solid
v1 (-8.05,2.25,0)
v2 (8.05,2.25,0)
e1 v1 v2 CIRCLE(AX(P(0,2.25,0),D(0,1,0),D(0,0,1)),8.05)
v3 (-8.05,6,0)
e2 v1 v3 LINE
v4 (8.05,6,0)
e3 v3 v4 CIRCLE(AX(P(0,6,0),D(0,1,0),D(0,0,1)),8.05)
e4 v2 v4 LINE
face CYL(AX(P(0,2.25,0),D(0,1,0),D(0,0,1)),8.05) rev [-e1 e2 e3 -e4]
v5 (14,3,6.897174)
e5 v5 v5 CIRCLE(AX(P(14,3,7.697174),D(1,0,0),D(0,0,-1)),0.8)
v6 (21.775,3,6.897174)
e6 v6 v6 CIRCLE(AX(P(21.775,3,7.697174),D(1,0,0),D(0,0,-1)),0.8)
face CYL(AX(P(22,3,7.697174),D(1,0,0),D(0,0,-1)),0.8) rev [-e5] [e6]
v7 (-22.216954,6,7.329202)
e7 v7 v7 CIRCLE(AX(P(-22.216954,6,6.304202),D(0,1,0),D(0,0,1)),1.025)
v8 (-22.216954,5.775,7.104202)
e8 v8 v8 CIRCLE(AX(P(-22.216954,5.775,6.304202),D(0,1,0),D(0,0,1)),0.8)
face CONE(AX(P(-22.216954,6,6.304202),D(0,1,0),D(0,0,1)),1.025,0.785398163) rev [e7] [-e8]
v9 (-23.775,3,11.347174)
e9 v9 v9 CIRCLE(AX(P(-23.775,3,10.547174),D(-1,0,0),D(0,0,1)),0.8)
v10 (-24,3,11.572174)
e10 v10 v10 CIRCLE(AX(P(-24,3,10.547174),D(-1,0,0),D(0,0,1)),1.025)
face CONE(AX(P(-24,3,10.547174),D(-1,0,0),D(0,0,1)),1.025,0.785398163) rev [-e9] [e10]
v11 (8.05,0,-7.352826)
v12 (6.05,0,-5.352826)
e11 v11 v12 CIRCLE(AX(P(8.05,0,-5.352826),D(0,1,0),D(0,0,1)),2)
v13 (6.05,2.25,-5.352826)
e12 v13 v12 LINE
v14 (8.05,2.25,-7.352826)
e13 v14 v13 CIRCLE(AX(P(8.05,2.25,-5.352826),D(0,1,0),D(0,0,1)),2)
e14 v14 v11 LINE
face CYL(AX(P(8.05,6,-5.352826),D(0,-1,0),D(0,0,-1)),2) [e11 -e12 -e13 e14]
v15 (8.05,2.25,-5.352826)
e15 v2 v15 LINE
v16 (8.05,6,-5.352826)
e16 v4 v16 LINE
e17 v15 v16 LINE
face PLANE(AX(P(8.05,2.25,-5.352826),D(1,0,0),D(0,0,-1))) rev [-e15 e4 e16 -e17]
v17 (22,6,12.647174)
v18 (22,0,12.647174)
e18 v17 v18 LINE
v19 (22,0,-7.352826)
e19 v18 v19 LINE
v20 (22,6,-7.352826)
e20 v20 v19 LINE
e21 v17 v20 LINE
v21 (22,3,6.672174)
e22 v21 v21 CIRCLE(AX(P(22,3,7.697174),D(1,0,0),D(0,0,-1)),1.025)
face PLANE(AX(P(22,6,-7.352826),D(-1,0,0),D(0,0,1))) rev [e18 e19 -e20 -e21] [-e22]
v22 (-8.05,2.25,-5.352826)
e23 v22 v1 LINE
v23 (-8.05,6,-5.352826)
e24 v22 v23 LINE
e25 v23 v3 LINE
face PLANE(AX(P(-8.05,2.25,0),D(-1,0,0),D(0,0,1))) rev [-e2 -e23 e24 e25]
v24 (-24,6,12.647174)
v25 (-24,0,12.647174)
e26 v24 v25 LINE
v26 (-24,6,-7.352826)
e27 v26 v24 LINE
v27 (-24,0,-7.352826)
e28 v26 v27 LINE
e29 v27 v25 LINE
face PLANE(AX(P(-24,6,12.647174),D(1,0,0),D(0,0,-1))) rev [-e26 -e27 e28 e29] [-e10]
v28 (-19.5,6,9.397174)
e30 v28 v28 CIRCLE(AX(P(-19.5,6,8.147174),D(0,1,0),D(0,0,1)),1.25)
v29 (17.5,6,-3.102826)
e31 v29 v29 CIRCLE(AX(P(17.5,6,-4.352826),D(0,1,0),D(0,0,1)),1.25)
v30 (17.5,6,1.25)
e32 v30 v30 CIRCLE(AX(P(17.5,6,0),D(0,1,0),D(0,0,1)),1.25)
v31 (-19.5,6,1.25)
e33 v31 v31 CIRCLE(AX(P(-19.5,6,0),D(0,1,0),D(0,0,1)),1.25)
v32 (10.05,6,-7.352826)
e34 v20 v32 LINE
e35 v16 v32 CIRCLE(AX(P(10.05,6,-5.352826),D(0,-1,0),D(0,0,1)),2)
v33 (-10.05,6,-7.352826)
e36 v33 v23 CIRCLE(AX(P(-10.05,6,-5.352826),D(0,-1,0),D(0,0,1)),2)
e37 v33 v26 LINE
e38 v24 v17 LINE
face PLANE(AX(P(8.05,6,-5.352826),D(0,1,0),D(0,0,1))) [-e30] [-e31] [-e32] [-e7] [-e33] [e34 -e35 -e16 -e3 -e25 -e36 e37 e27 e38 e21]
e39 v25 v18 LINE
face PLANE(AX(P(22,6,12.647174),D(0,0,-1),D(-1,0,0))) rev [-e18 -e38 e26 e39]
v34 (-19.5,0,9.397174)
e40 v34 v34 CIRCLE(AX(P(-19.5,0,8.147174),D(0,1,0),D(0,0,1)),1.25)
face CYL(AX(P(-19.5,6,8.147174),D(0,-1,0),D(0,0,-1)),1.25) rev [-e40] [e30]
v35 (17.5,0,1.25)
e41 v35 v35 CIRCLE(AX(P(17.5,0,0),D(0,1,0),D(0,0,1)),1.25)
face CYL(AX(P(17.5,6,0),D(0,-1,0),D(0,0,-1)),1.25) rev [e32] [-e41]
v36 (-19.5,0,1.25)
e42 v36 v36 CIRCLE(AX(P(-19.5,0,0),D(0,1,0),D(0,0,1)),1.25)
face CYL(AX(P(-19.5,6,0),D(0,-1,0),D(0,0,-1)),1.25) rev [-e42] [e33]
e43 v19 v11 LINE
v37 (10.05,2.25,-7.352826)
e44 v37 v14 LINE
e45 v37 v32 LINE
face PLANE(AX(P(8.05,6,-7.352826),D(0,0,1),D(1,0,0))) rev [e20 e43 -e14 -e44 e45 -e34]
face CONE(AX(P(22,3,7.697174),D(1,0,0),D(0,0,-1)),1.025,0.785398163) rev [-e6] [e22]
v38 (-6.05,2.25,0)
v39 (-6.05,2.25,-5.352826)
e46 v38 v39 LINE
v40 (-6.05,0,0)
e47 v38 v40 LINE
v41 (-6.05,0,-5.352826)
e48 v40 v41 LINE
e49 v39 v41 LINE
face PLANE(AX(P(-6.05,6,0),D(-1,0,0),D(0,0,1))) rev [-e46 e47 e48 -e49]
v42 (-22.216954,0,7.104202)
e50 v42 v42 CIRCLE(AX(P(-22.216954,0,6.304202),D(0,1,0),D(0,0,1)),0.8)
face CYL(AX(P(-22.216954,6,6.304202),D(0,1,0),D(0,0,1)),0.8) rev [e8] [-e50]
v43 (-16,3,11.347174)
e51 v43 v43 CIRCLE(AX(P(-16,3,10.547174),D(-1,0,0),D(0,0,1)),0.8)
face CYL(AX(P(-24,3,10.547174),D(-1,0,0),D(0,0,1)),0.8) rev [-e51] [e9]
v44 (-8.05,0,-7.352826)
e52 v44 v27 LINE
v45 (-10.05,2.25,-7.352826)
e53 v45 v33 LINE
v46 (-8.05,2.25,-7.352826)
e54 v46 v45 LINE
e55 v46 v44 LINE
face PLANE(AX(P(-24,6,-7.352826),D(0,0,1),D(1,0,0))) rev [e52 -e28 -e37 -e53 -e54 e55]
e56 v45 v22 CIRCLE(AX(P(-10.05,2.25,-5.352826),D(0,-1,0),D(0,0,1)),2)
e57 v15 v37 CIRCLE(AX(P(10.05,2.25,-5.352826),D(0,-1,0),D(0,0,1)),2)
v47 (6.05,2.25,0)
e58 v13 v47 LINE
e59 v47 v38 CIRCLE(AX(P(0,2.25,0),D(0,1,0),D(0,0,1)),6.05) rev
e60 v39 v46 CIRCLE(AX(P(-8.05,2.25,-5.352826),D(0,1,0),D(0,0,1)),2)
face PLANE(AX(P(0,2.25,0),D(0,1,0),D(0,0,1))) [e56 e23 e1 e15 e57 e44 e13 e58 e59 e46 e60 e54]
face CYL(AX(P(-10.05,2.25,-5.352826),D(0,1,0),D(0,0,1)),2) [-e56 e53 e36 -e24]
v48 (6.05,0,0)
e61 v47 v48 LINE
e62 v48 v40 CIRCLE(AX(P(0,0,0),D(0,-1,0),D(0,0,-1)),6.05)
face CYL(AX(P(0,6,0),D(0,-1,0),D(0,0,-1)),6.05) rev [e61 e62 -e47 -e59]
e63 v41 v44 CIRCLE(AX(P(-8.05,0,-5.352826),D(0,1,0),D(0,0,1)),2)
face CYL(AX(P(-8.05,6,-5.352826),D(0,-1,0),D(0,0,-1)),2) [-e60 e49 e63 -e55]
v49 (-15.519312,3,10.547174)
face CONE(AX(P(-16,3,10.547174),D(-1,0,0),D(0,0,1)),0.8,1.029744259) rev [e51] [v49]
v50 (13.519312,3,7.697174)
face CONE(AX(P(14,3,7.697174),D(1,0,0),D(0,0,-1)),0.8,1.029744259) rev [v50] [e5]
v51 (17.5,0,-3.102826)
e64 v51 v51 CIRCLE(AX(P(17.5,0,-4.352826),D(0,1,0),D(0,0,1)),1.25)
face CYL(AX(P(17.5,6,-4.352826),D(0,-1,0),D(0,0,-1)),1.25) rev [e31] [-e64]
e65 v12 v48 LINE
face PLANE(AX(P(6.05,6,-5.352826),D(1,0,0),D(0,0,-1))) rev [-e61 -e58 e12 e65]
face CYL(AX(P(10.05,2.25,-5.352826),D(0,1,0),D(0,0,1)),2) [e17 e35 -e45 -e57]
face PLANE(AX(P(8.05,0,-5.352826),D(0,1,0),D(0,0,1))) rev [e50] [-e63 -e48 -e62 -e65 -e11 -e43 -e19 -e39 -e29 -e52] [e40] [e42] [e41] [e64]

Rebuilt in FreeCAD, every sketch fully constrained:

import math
import FreeCAD as App
import Part
import Sketcher

V = App.Vector

doc = App.newDocument("Part")
body = doc.addObject("PartDesign::Body", "Body")

sketch1 = body.newObject("Sketcher::SketchObject", "Sketch")
sketch1.AttachmentSupport = (doc.getObject("XZ_Plane"), [""])
sketch1.MapMode = "FlatFace"
sketch1.addGeometry(Part.LineSegment(V(-8.05, -7.352826, 0), V(-24, -7.352826, 0)), False)
sketch1.addGeometry(Part.LineSegment(V(-24, -7.352826, 0), V(-24, 12.647174, 0)), False)
sketch1.addGeometry(Part.LineSegment(V(-24, 12.647174, 0), V(22, 12.647174, 0)), False)
sketch1.addGeometry(Part.LineSegment(V(22, 12.647174, 0), V(22, -7.352826, 0)), False)
sketch1.addGeometry(Part.LineSegment(V(22, -7.352826, 0), V(8.05, -7.352826, 0)), False)
sketch1.addGeometry(Part.ArcOfCircle(Part.Circle(V(8.05, -5.352826, 0), V(0, 0, 1), 2), math.radians(180), math.radians(270)), False)
sketch1.addGeometry(Part.LineSegment(V(6.05, -5.352826, 0), V(6.05, 0, 0)), False)
sketch1.addGeometry(Part.ArcOfCircle(Part.Circle(V(0, 0, 0), V(0, 0, 1), 6.05), math.radians(0), math.radians(180)), False)
sketch1.addGeometry(Part.LineSegment(V(-6.05, 0, 0), V(-6.05, -5.352826, 0)), False)
sketch1.addGeometry(Part.ArcOfCircle(Part.Circle(V(-8.05, -5.352826, 0), V(0, 0, 1), 2), math.radians(-90), math.radians(0)), False)
sketch1.addGeometry(Part.Circle(V(-19.5, 8.147174, 0), V(0, 0, 1), 1.25), False)
sketch1.addGeometry(Part.Circle(V(17.5, 0, 0), V(0, 0, 1), 1.25), False)
sketch1.addGeometry(Part.Circle(V(17.5, -4.352826, 0), V(0, 0, 1), 1.25), False)
sketch1.addGeometry(Part.Circle(V(-19.5, 0, 0), V(0, 0, 1), 1.25), False)
sketch1.addConstraint(Sketcher.Constraint("Coincident", 0, 2, 1, 1))
sketch1.addConstraint(Sketcher.Constraint("Coincident", 1, 2, 2, 1))
sketch1.addConstraint(Sketcher.Constraint("Coincident", 2, 2, 3, 1))
sketch1.addConstraint(Sketcher.Constraint("Coincident", 3, 2, 4, 1))
sketch1.addConstraint(Sketcher.Constraint("Tangent", 4, 2, 5, 2))
sketch1.addConstraint(Sketcher.Constraint("Tangent", 5, 1, 6, 1))
sketch1.addConstraint(Sketcher.Constraint("Tangent", 6, 2, 7, 1))
sketch1.addConstraint(Sketcher.Constraint("Tangent", 7, 2, 8, 1))
sketch1.addConstraint(Sketcher.Constraint("Tangent", 8, 2, 9, 2))
sketch1.addConstraint(Sketcher.Constraint("Tangent", 9, 1, 0, 1))
sketch1.addConstraint(Sketcher.Constraint("Horizontal", 0))
sketch1.addConstraint(Sketcher.Constraint("Vertical", 1))
sketch1.addConstraint(Sketcher.Constraint("Horizontal", 2))
sketch1.addConstraint(Sketcher.Constraint("Vertical", 3))
sketch1.addConstraint(Sketcher.Constraint("Horizontal", 4))
sketch1.addConstraint(Sketcher.Constraint("Vertical", 6))
sketch1.addConstraint(Sketcher.Constraint("Vertical", 8))
sketch1.addConstraint(Sketcher.Constraint("Coincident", 7, 3, -1, 1))
sketch1.addConstraint(Sketcher.Constraint("Equal", 5, 9))
sketch1.addConstraint(Sketcher.Constraint("Equal", 10, 11))
sketch1.addConstraint(Sketcher.Constraint("Equal", 11, 12))
sketch1.addConstraint(Sketcher.Constraint("Equal", 12, 13))
sketch1.addConstraint(Sketcher.Constraint("PointOnObject", 11, 3, -1))
sketch1.addConstraint(Sketcher.Constraint("PointOnObject", 13, 3, -1))
sketch1.addConstraint(Sketcher.Constraint("Horizontal", 5, 3, 9, 3))
sketch1.addConstraint(Sketcher.Constraint("Vertical", 11, 3, 12, 3))
sketch1.addConstraint(Sketcher.Constraint("Vertical", 10, 3, 13, 3))
sketch1.addConstraint(Sketcher.Constraint("Radius", 5, 2.0))
sketch1.addConstraint(Sketcher.Constraint("Diameter", 10, 2.5))
sketch1.addConstraint(Sketcher.Constraint("DistanceX", 2, 1, 2, 2, 46.0))
sketch1.addConstraint(Sketcher.Constraint("DistanceY", 1, 1, 1, 2, 20.0))
sketch1.addConstraint(Sketcher.Constraint("Radius", 7, 6.05))
sketch1.addConstraint(Sketcher.Constraint("DistanceX", 0, 2, -1, 1, 24.0))
sketch1.addConstraint(Sketcher.Constraint("DistanceX", 10, 3, 11, 3, 37.0))
sketch1.addConstraint(Sketcher.Constraint("DistanceY", 5, 3, 12, 3, 1.0))
sketch1.addConstraint(Sketcher.Constraint("DistanceX", 10, 3, -1, 1, 19.5))
sketch1.addConstraint(Sketcher.Constraint("DistanceY", 9, 3, 10, 3, 13.5))
sketch1.addConstraint(Sketcher.Constraint("DistanceY", 6, 1, 6, 2, 5.352826))
pad1 = body.newObject("PartDesign::Pad", "Pad")
pad1.Profile = sketch1
pad1.Length = 6
pad1.Reversed = True

sketch2 = body.newObject("Sketcher::SketchObject", "Sketch001")
sketch2.AttachmentSupport = (doc.getObject("XZ_Plane"), [""])
sketch2.MapMode = "FlatFace"
sketch2.AttachmentOffset = App.Placement(V(0, 0, -6), App.Rotation())
sketch2.addGeometry(Part.LineSegment(V(-8.05, -5.352826, 0), V(-8.05, 0, 0)), False)
sketch2.addGeometry(Part.ArcOfCircle(Part.Circle(V(0, 0, 0), V(0, 0, 1), 8.05), math.radians(0), math.radians(180)), False)
sketch2.addGeometry(Part.LineSegment(V(8.05, 0, 0), V(8.05, -5.352826, 0)), False)
sketch2.addGeometry(Part.ArcOfCircle(Part.Circle(V(10.05, -5.352826, 0), V(0, 0, 1), 2), math.radians(180), math.radians(270)), False)
sketch2.addGeometry(Part.LineSegment(V(10.05, -7.352826, 0), V(-10.05, -7.352826, 0)), False)
sketch2.addGeometry(Part.ArcOfCircle(Part.Circle(V(-10.05, -5.352826, 0), V(0, 0, 1), 2), math.radians(-90), math.radians(0)), False)
sketch2.addConstraint(Sketcher.Constraint("Tangent", 0, 2, 1, 2))
sketch2.addConstraint(Sketcher.Constraint("Tangent", 1, 1, 2, 1))
sketch2.addConstraint(Sketcher.Constraint("Tangent", 2, 2, 3, 1))
sketch2.addConstraint(Sketcher.Constraint("Tangent", 3, 2, 4, 1))
sketch2.addConstraint(Sketcher.Constraint("Tangent", 4, 2, 5, 1))
sketch2.addConstraint(Sketcher.Constraint("Tangent", 5, 2, 0, 1))
sketch2.addConstraint(Sketcher.Constraint("Vertical", 0))
sketch2.addConstraint(Sketcher.Constraint("Vertical", 2))
sketch2.addConstraint(Sketcher.Constraint("Horizontal", 4))
sketch2.addConstraint(Sketcher.Constraint("Coincident", 1, 3, -1, 1))
sketch2.addConstraint(Sketcher.Constraint("Equal", 3, 5))
sketch2.addConstraint(Sketcher.Constraint("Radius", 3, 2.0))
sketch2.addConstraint(Sketcher.Constraint("Radius", 1, 8.05))
sketch2.addConstraint(Sketcher.Constraint("DistanceY", 0, 1, 0, 2, 5.352826))
pocket1 = body.newObject("PartDesign::Pocket", "Pocket")
pocket1.Profile = sketch2
pocket1.Length = 3.75
pocket1.Reversed = True

sketch3 = body.newObject("Sketcher::SketchObject", "Sketch002")
sketch3.AttachmentSupport = (doc.getObject("YZ_Plane"), [""])
sketch3.MapMode = "FlatFace"
sketch3.AttachmentOffset = App.Placement(V(0, 0, 22), App.Rotation())
sketch3.addGeometry(Part.Circle(V(3, 7.697174, 0), V(0, 0, 1), 0.8), False)
sketch3.addConstraint(Sketcher.Constraint("Diameter", 0, 1.6))
sketch3.addConstraint(Sketcher.Constraint("DistanceX", -1, 1, 0, 3, 3.0))
sketch3.addConstraint(Sketcher.Constraint("DistanceY", -1, 1, 0, 3, 7.697174))
doc.recompute()
hole = body.newObject("PartDesign::Hole", "Hole")
hole.Profile = sketch3
hole.ThreadType = "None"
hole.Diameter = 1.6
hole.DepthType = "Dimension"
hole.Depth = 8
hole.DrillPoint = "Angled"
hole.DrillPointAngle = 118
hole.HoleCutType = "Countersink"
hole.HoleCutDiameter = 2.05
hole.HoleCutCountersinkAngle = 90

sketch4 = body.newObject("Sketcher::SketchObject", "Sketch003")
sketch4.AttachmentSupport = (doc.getObject("YZ_Plane"), [""])
sketch4.MapMode = "FlatFace"
sketch4.AttachmentOffset = App.Placement(V(0, 0, -24), App.Rotation())
sketch4.addGeometry(Part.Circle(V(3, 10.547174, 0), V(0, 0, 1), 0.8), False)
sketch4.addConstraint(Sketcher.Constraint("Diameter", 0, 1.6))
sketch4.addConstraint(Sketcher.Constraint("DistanceX", -1, 1, 0, 3, 3.0))
sketch4.addConstraint(Sketcher.Constraint("DistanceY", -1, 1, 0, 3, 10.547174))
doc.recompute()
hole2 = body.newObject("PartDesign::Hole", "Hole001")
hole2.Profile = sketch4
hole2.ThreadType = "None"
hole2.Diameter = 1.6
hole2.DepthType = "Dimension"
hole2.Depth = 8
hole2.DrillPoint = "Angled"
hole2.DrillPointAngle = 118
hole2.HoleCutType = "Countersink"
hole2.HoleCutDiameter = 2.05
hole2.HoleCutCountersinkAngle = 90
hole2.Reversed = True

sketch5 = body.newObject("Sketcher::SketchObject", "Sketch004")
sketch5.AttachmentSupport = (doc.getObject("XZ_Plane"), [""])
sketch5.MapMode = "FlatFace"
sketch5.AttachmentOffset = App.Placement(V(0, 0, -6), App.Rotation())
sketch5.addGeometry(Part.Circle(V(-22.216954, 6.304202, 0), V(0, 0, 1), 0.8), False)
sketch5.addConstraint(Sketcher.Constraint("Diameter", 0, 1.6))
sketch5.addConstraint(Sketcher.Constraint("DistanceY", -1, 1, 0, 3, 6.304202))
sketch5.addConstraint(Sketcher.Constraint("DistanceX", 0, 3, -1, 1, 22.216954))
doc.recompute()
hole3 = body.newObject("PartDesign::Hole", "Hole002")
hole3.Profile = sketch5
hole3.ThreadType = "None"
hole3.Diameter = 1.6
hole3.DepthType = "Dimension"
hole3.Depth = 6
hole3.DrillPoint = "Angled"
hole3.DrillPointAngle = 118
hole3.HoleCutType = "Countersink"
hole3.HoleCutDiameter = 2.05
hole3.HoleCutCountersinkAngle = 90
hole3.Reversed = True

doc.recompute()
